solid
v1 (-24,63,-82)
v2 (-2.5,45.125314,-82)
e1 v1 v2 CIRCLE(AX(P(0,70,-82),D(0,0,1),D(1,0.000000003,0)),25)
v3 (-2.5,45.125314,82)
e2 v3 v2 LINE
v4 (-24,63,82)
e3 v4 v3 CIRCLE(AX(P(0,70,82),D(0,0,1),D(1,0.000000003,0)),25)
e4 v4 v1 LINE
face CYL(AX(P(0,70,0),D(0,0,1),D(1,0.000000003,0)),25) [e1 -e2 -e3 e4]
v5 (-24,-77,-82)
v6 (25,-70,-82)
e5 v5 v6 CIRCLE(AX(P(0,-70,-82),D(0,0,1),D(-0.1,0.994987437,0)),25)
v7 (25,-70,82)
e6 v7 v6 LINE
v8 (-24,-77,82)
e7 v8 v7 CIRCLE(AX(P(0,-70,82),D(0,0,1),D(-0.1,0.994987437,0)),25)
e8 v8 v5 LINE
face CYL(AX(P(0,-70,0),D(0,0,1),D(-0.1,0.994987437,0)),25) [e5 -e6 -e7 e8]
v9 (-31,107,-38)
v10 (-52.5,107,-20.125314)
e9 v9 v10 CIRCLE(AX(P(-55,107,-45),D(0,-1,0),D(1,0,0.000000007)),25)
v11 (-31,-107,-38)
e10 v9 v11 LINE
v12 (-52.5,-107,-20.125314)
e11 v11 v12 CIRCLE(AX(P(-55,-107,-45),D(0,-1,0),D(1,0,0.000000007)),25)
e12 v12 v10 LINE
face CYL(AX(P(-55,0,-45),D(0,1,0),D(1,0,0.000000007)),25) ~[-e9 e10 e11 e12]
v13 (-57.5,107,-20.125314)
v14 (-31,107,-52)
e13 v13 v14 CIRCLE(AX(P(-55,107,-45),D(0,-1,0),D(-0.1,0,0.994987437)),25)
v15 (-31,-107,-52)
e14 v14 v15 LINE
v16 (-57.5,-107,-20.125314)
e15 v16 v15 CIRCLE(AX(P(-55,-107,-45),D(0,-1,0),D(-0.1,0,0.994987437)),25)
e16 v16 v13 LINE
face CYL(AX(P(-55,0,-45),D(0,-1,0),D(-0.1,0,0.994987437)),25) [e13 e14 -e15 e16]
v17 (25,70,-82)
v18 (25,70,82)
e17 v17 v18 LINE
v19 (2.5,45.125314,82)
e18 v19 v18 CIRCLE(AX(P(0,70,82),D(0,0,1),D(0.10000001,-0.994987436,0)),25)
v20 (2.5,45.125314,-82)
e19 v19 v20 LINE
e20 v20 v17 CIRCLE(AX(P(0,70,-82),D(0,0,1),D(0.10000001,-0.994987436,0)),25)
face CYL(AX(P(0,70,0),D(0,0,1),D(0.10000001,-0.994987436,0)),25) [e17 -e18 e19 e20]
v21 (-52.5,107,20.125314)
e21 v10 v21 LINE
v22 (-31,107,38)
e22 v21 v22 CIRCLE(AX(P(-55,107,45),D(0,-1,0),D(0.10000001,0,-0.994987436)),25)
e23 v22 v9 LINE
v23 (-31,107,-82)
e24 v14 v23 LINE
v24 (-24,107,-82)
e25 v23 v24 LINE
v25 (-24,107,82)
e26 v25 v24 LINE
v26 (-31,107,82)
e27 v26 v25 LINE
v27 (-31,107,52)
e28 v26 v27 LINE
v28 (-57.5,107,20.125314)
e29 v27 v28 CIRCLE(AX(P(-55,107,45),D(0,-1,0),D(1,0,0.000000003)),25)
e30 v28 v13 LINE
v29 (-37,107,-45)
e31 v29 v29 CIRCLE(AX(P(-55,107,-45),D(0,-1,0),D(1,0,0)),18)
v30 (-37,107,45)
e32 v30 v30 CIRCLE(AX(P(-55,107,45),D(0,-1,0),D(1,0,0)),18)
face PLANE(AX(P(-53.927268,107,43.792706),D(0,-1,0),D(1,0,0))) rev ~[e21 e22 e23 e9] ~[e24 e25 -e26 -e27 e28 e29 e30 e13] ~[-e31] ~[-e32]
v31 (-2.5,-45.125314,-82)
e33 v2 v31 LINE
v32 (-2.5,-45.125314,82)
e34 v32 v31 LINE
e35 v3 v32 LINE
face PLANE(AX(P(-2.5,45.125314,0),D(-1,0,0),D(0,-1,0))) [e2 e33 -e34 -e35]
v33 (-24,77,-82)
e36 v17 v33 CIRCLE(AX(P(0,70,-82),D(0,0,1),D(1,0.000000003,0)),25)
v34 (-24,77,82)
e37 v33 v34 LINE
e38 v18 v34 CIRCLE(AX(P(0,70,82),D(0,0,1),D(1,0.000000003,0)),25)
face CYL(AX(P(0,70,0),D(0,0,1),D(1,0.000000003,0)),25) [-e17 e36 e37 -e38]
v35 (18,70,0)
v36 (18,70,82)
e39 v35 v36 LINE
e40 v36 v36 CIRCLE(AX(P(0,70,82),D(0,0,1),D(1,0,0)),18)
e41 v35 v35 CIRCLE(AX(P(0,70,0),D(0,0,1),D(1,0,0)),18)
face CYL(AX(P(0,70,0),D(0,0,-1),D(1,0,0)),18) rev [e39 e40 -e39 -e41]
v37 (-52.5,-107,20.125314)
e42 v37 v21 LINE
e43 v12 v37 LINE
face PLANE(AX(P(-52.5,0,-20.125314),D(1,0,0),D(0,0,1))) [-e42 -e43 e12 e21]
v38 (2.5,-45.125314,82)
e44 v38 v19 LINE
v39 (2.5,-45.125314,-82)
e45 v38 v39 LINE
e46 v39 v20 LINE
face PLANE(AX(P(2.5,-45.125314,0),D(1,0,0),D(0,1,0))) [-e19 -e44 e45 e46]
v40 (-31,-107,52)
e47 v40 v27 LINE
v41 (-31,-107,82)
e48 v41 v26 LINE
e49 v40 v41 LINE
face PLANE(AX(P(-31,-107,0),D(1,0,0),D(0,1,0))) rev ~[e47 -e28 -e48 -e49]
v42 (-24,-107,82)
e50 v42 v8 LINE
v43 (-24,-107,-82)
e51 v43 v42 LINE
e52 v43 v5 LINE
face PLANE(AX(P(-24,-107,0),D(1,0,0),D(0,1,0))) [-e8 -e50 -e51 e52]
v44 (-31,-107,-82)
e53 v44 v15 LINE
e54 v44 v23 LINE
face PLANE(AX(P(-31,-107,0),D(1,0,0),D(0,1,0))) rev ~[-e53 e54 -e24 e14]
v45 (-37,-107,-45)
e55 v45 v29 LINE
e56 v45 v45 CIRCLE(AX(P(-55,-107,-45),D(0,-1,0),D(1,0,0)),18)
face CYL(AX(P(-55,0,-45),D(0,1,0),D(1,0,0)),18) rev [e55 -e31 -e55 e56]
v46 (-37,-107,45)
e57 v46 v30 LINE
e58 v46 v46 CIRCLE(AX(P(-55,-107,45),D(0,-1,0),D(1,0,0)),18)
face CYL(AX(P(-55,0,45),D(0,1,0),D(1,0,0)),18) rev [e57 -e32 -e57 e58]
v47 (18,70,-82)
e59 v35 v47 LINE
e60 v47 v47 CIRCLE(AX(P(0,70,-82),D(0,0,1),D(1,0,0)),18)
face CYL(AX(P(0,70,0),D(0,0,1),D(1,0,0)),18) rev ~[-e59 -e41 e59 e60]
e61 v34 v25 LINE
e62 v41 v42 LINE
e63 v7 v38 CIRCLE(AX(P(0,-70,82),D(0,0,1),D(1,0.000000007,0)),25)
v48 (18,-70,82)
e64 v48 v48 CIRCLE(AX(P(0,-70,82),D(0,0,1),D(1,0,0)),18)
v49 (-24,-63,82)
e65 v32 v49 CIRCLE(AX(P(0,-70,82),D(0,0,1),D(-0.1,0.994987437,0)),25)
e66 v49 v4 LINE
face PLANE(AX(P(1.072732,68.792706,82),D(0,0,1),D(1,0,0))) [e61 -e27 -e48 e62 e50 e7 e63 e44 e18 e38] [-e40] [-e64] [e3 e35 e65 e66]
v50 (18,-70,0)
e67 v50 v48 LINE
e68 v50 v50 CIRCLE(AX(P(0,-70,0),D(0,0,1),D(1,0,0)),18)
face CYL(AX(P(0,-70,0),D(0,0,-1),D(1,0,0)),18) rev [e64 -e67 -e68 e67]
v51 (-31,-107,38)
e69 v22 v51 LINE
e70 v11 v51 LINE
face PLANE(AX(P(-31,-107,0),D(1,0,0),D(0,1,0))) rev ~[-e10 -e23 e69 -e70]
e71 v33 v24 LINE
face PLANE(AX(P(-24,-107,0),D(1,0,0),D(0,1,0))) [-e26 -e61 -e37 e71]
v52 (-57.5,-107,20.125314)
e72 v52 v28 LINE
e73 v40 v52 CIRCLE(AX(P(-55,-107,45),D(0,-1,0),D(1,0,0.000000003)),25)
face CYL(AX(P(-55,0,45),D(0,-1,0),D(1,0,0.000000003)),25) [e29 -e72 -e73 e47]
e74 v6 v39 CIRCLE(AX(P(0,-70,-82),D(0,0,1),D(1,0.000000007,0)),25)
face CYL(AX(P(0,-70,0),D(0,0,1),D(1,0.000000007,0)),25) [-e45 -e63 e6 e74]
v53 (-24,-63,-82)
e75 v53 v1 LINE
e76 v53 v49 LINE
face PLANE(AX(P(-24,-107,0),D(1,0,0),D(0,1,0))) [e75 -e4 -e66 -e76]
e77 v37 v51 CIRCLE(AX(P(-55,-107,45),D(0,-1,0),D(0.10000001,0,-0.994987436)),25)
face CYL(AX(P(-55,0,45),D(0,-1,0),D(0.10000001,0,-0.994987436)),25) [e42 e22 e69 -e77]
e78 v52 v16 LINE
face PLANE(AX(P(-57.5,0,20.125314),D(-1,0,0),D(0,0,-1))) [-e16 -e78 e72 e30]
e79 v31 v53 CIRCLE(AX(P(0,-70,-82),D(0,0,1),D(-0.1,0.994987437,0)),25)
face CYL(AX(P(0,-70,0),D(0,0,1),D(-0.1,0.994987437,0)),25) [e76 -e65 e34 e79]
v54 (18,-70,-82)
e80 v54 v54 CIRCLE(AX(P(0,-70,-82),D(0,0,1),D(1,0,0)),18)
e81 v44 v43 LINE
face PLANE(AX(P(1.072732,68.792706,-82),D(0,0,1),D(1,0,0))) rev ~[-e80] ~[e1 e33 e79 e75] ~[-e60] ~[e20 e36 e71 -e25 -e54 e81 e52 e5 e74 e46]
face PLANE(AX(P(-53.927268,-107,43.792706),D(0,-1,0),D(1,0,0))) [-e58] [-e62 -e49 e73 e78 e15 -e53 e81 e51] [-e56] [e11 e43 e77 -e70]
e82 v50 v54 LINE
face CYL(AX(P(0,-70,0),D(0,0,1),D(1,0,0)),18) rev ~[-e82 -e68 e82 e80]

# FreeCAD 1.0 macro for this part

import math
import FreeCAD as App
import Part
import Sketcher
from FreeCAD import Vector
Q = App.Units.Quantity


def add_polygon(sketch, points):
    """Adds a closed chain of lines whose ends are joined by coincident constraints."""
    first, n = sketch.GeometryCount, len(points)
    for a, b in zip(points, points[1:] + points[:1]):
        sketch.addGeometry(Part.LineSegment(App.Vector(*a, 0), App.Vector(*b, 0)), False)
    for i in range(n):
        sketch.addConstraint(Sketcher.Constraint("Coincident", first + i, 2, first + (i + 1) % n, 1))

doc = App.newDocument("Part")
body = doc.addObject("PartDesign::Body", "Body")

# Sketch on XY plane
sketch1 = body.newObject("Sketcher::SketchObject", "Sketch")
sketch1.AttachmentSupport = (doc.getObject("XY_Plane"), [""])
sketch1.MapMode = "FlatFace"
add_polygon(sketch1, [(-31, 107), (-31, -107), (-24, -107), (-24, 107)])  # lines 0-3
sketch1.addConstraint(Sketcher.Constraint("Vertical", 0))
sketch1.addConstraint(Sketcher.Constraint("Horizontal", 1))
sketch1.addConstraint(Sketcher.Constraint("Vertical", 2))
sketch1.addConstraint(Sketcher.Constraint("Horizontal", 3))
sketch1.addConstraint(Sketcher.Constraint("DistanceX", 1, 1, 1, 2, Q("7 mm")))
sketch1.addConstraint(Sketcher.Constraint("DistanceY", 0, 2, 0, 1, Q("214 mm")))
sketch1.addConstraint(Sketcher.Constraint("DistanceX", 0, 2, -1, 1, Q("31 mm")))
sketch1.addConstraint(Sketcher.Constraint("DistanceY", 0, 2, -1, 1, Q("107 mm")))
pad1 = body.newObject("PartDesign::Pad", "Pad")
pad1.Profile = sketch1
pad1.Type = "TwoLengths"
pad1.Length = 82
pad1.Length2 = 82

# Sketch on XZ plane
sketch2 = body.newObject("Sketcher::SketchObject", "Sketch001")
sketch2.AttachmentSupport = (doc.getObject("XZ_Plane"), [""])
sketch2.MapMode = "FlatFace"
sketch2.addGeometry(Part.ArcOfCircle(Part.Circle(Vector(-55, 45, 0), Vector(0, 0, 1), 25), math.radians(-84.260829), math.radians(0)), False)
sketch2.addGeometry(Part.ArcOfCircle(Part.Circle(Vector(-55, 45, 0), Vector(0, 0, 1), 25), math.radians(0), math.radians(264.26083)), False)
sketch2.addGeometry(Part.LineSegment(Vector(-57.5, 20.125314, 0), Vector(-57.5, -20.125314, 0)), False)
sketch2.addGeometry(Part.ArcOfCircle(Part.Circle(Vector(-55, -45, 0), Vector(0, 0, 1), 25), math.radians(95.73917), math.radians(360)), False)
sketch2.addGeometry(Part.ArcOfCircle(Part.Circle(Vector(-55, -45, 0), Vector(0, 0, 1), 25), math.radians(0), math.radians(84.260829)), False)
sketch2.addGeometry(Part.LineSegment(Vector(-52.5, -20.125314, 0), Vector(-52.5, 20.125314, 0)), False)
sketch2.addGeometry(Part.Circle(Vector(-55, 45, 0), Vector(0, 0, 1), 18), False)
sketch2.addGeometry(Part.Circle(Vector(-55, -45, 0), Vector(0, 0, 1), 18), False)
sketch2.addConstraint(Sketcher.Constraint("Tangent", 0, 2, 1, 1))
sketch2.addConstraint(Sketcher.Constraint("Coincident", 1, 2, 2, 1))
sketch2.addConstraint(Sketcher.Constraint("Coincident", 2, 2, 3, 1))
sketch2.addConstraint(Sketcher.Constraint("Tangent", 3, 2, 4, 1))
sketch2.addConstraint(Sketcher.Constraint("Coincident", 4, 2, 5, 1))
sketch2.addConstraint(Sketcher.Constraint("Coincident", 5, 2, 0, 1))
sketch2.addConstraint(Sketcher.Constraint("Vertical", 2))
sketch2.addConstraint(Sketcher.Constraint("Vertical", 5))
sketch2.addConstraint(Sketcher.Constraint("Coincident", 6, 3, 0, 3))
sketch2.addConstraint(Sketcher.Constraint("Coincident", 7, 3, 3, 3))
sketch2.addConstraint(Sketcher.Constraint("Equal", 0, 1))
sketch2.addConstraint(Sketcher.Constraint("Equal", 1, 3))
sketch2.addConstraint(Sketcher.Constraint("Equal", 3, 4))
sketch2.addConstraint(Sketcher.Constraint("Equal", 6, 7))
sketch2.addConstraint(Sketcher.Constraint("Symmetric", 0, 3, 3, 3, -1))
sketch2.addConstraint(Sketcher.Constraint("Horizontal", 6, 3, 0, 2))
sketch2.addConstraint(Sketcher.Constraint("Horizontal", 7, 3, 3, 2))
sketch2.addConstraint(Sketcher.Constraint("Horizontal", 2, 2, 4, 2))
sketch2.addConstraint(Sketcher.Constraint("Diameter", 6, Q("36 mm")))
sketch2.addConstraint(Sketcher.Constraint("Radius", 0, Q("25 mm")))
sketch2.addConstraint(Sketcher.Constraint("DistanceX", 0, 3, -1, 1, Q("55 mm")))
sketch2.addConstraint(Sketcher.Constraint("DistanceY", -1, 1, 0, 3, Q("45 mm")))
sketch2.addConstraint(Sketcher.Constraint("DistanceX", 2, 2, 4, 2, Q("5 mm")))
pad2 = body.newObject("PartDesign::Pad", "Pad001")
pad2.Profile = sketch2
pad2.Type = "TwoLengths"
pad2.Length = 107
pad2.Length2 = 107

# Sketch on XY plane
sketch3 = body.newObject("Sketcher::SketchObject", "Sketch002")
sketch3.AttachmentSupport = (doc.getObject("XY_Plane"), [""])
sketch3.MapMode = "FlatFace"
sketch3.addGeometry(Part.ArcOfCircle(Part.Circle(Vector(0, 70, 0), Vector(0, 0, 1), 25), math.radians(-84.260829), math.radians(0)), False)
sketch3.addGeometry(Part.ArcOfCircle(Part.Circle(Vector(0, 70, 0), Vector(0, 0, 1), 25), math.radians(0), math.radians(264.26083)), False)
sketch3.addGeometry(Part.LineSegment(Vector(-2.5, 45.125314, 0), Vector(-2.5, -45.125314, 0)), False)
sketch3.addGeometry(Part.ArcOfCircle(Part.Circle(Vector(0, -70, 0), Vector(0, 0, 1), 25), math.radians(95.73917), math.radians(360)), False)
sketch3.addGeometry(Part.ArcOfCircle(Part.Circle(Vector(0, -70, 0), Vector(0, 0, 1), 25), math.radians(0), math.radians(84.260829)), False)
sketch3.addGeometry(Part.LineSegment(Vector(2.5, -45.125314, 0), Vector(2.5, 45.125314, 0)), False)
sketch3.addGeometry(Part.Circle(Vector(0, 70, 0), Vector(0, 0, 1), 18), False)
sketch3.addGeometry(Part.Circle(Vector(0, -70, 0), Vector(0, 0, 1), 18), False)
sketch3.addConstraint(Sketcher.Constraint("Tangent", 0, 2, 1, 1))
sketch3.addConstraint(Sketcher.Constraint("Coincident", 1, 2, 2, 1))
sketch3.addConstraint(Sketcher.Constraint("Coincident", 2, 2, 3, 1))
sketch3.addConstraint(Sketcher.Constraint("Tangent", 3, 2, 4, 1))
sketch3.addConstraint(Sketcher.Constraint("Coincident", 4, 2, 5, 1))
sketch3.addConstraint(Sketcher.Constraint("Coincident", 5, 2, 0, 1))
sketch3.addConstraint(Sketcher.Constraint("Vertical", 2))
sketch3.addConstraint(Sketcher.Constraint("Vertical", 5))
sketch3.addConstraint(Sketcher.Constraint("Coincident", 6, 3, 0, 3))
sketch3.addConstraint(Sketcher.Constraint("Coincident", 7, 3, 3, 3))
sketch3.addConstraint(Sketcher.Constraint("Equal", 0, 1))
sketch3.addConstraint(Sketcher.Constraint("Equal", 1, 3))
sketch3.addConstraint(Sketcher.Constraint("Equal", 3, 4))
sketch3.addConstraint(Sketcher.Constraint("Equal", 6, 7))
sketch3.addConstraint(Sketcher.Constraint("Symmetric", 0, 3, 3, 3, -1, 1))
sketch3.addConstraint(Sketcher.Constraint("Symmetric", 2, 2, 4, 2, -2))
sketch3.addConstraint(Sketcher.Constraint("Horizontal", 6, 3, 0, 2))
sketch3.addConstraint(Sketcher.Constraint("Horizontal", 7, 3, 3, 2))
sketch3.addConstraint(Sketcher.Constraint("Diameter", 6, Q("36 mm")))
sketch3.addConstraint(Sketcher.Constraint("Radius", 0, Q("25 mm")))
sketch3.addConstraint(Sketcher.Constraint("DistanceY", -1, 1, 0, 3, Q("70 mm")))
sketch3.addConstraint(Sketcher.Constraint("DistanceX", 2, 2, 4, 2, Q("5 mm")))
pad3 = body.newObject("PartDesign::Pad", "Pad002")
pad3.Profile = sketch3
pad3.Type = "TwoLengths"
pad3.Length = 82
pad3.Length2 = 82

doc.recompute()
